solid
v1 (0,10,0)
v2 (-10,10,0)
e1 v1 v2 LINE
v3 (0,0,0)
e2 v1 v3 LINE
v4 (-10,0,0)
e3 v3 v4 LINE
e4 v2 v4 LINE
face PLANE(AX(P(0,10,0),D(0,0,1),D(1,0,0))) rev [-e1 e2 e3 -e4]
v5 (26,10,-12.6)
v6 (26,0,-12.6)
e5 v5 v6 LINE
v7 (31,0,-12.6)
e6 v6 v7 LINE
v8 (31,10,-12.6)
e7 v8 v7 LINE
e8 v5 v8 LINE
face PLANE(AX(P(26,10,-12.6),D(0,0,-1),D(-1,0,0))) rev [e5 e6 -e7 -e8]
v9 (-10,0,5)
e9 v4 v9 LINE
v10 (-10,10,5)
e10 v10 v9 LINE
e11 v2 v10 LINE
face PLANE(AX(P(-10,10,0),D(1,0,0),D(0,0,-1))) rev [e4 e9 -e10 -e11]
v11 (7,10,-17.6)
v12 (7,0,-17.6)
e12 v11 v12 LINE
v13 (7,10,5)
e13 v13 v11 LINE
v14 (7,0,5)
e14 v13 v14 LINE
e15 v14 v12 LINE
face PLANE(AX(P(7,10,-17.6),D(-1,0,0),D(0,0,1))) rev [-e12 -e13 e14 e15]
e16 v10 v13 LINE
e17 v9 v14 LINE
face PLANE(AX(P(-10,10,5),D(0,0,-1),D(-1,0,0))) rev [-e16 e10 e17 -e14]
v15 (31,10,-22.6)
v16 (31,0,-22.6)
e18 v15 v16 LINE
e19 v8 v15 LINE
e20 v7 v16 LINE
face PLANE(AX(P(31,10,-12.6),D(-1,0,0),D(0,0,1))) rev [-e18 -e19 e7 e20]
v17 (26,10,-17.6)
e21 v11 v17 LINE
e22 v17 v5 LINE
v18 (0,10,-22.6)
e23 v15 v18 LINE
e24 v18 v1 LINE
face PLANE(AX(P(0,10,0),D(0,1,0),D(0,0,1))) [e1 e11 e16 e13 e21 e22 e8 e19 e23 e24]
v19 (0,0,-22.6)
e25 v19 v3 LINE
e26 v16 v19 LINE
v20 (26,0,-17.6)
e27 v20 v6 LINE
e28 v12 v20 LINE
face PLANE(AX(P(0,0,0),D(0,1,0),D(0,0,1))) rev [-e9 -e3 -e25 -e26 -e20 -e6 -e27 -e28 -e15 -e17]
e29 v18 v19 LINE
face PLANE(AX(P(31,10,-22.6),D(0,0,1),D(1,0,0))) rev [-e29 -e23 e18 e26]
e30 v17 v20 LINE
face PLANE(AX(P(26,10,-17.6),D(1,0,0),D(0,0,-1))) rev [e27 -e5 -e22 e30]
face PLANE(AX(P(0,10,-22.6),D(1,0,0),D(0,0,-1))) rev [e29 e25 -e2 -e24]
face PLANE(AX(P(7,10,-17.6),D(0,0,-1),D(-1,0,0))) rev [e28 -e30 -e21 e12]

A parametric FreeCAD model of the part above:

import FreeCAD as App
import Part
import Sketcher
from FreeCAD import Vector

doc = App.newDocument("Part")
body = doc.addObject("PartDesign::Body", "Body")

sketch1 = doc.addObject("Sketcher::SketchObject", "Sketch")
body.addObject(sketch1)
sketch1.AttachmentSupport = (doc.XZ_Plane, [""])
sketch1.MapMode = "FlatFace"
sketch1.addGeometry([
    Part.LineSegment(Vector(7, -18, 0), Vector(26, -18, 0)),
    Part.LineSegment(Vector(26, -18, 0), Vector(26, -13, 0)),
    Part.LineSegment(Vector(26, -13, 0), Vector(31, -13, 0)),
    Part.LineSegment(Vector(31, -13, 0), Vector(31, -23, 0)),
    Part.LineSegment(Vector(31, -23, 0), Vector(0, -23, 0)),
    Part.LineSegment(Vector(0, -23, 0), Vector(0, 0, 0)),
    Part.LineSegment(Vector(0, 0, 0), Vector(-10, 0, 0)),
    Part.LineSegment(Vector(-10, 0, 0), Vector(-10, 5, 0)),
    Part.LineSegment(Vector(-10, 5, 0), Vector(7, 5, 0)),
    Part.LineSegment(Vector(7, 5, 0), Vector(7, -18, 0)),
], False)
sketch1.addConstraint([
    Sketcher.Constraint("Coincident", 0, 2, 1, 1),
    Sketcher.Constraint("Coincident", 1, 2, 2, 1),
    Sketcher.Constraint("Coincident", 2, 2, 3, 1),
    Sketcher.Constraint("Coincident", 3, 2, 4, 1),
    Sketcher.Constraint("Coincident", 4, 2, 5, 1),
    Sketcher.Constraint("Coincident", 5, 2, 6, 1),
    Sketcher.Constraint("Coincident", 6, 2, 7, 1),
    Sketcher.Constraint("Coincident", 7, 2, 8, 1),
    Sketcher.Constraint("Coincident", 8, 2, 9, 1),
    Sketcher.Constraint("Coincident", 9, 2, 0, 1),
    Sketcher.Constraint("Horizontal", 0),
    Sketcher.Constraint("Vertical", 1),
    Sketcher.Constraint("Horizontal", 2),
    Sketcher.Constraint("Vertical", 3),
    Sketcher.Constraint("Horizontal", 4),
    Sketcher.Constraint("Vertical", 5),
    Sketcher.Constraint("Horizontal", 6),
    Sketcher.Constraint("Vertical", 7),
    Sketcher.Constraint("Horizontal", 8),
    Sketcher.Constraint("Vertical", 9),
    Sketcher.Constraint("Coincident", 5, 2, -1, 1),
    Sketcher.Constraint("Equal", 2, 1),
    Sketcher.Constraint("Equal", 6, 3),
    Sketcher.Constraint("Equal", 1, 7),
    Sketcher.Constraint("Equal", 5, 9),
    Sketcher.Constraint("DistanceX", 0, 1, 0, 2, 19.0),
    Sketcher.Constraint("DistanceX", 2, 1, 2, 2, 5.0),
    Sketcher.Constraint("DistanceX", 4, 2, 4, 1, 31.0),
    Sketcher.Constraint("DistanceY", 5, 1, 5, 2, 22.6),
])
pad1 = doc.addObject("PartDesign::Pad", "Pad")
body.addObject(pad1)
pad1.Profile = sketch1
pad1.Length = 10
pad1.Reversed = True

doc.recompute()
